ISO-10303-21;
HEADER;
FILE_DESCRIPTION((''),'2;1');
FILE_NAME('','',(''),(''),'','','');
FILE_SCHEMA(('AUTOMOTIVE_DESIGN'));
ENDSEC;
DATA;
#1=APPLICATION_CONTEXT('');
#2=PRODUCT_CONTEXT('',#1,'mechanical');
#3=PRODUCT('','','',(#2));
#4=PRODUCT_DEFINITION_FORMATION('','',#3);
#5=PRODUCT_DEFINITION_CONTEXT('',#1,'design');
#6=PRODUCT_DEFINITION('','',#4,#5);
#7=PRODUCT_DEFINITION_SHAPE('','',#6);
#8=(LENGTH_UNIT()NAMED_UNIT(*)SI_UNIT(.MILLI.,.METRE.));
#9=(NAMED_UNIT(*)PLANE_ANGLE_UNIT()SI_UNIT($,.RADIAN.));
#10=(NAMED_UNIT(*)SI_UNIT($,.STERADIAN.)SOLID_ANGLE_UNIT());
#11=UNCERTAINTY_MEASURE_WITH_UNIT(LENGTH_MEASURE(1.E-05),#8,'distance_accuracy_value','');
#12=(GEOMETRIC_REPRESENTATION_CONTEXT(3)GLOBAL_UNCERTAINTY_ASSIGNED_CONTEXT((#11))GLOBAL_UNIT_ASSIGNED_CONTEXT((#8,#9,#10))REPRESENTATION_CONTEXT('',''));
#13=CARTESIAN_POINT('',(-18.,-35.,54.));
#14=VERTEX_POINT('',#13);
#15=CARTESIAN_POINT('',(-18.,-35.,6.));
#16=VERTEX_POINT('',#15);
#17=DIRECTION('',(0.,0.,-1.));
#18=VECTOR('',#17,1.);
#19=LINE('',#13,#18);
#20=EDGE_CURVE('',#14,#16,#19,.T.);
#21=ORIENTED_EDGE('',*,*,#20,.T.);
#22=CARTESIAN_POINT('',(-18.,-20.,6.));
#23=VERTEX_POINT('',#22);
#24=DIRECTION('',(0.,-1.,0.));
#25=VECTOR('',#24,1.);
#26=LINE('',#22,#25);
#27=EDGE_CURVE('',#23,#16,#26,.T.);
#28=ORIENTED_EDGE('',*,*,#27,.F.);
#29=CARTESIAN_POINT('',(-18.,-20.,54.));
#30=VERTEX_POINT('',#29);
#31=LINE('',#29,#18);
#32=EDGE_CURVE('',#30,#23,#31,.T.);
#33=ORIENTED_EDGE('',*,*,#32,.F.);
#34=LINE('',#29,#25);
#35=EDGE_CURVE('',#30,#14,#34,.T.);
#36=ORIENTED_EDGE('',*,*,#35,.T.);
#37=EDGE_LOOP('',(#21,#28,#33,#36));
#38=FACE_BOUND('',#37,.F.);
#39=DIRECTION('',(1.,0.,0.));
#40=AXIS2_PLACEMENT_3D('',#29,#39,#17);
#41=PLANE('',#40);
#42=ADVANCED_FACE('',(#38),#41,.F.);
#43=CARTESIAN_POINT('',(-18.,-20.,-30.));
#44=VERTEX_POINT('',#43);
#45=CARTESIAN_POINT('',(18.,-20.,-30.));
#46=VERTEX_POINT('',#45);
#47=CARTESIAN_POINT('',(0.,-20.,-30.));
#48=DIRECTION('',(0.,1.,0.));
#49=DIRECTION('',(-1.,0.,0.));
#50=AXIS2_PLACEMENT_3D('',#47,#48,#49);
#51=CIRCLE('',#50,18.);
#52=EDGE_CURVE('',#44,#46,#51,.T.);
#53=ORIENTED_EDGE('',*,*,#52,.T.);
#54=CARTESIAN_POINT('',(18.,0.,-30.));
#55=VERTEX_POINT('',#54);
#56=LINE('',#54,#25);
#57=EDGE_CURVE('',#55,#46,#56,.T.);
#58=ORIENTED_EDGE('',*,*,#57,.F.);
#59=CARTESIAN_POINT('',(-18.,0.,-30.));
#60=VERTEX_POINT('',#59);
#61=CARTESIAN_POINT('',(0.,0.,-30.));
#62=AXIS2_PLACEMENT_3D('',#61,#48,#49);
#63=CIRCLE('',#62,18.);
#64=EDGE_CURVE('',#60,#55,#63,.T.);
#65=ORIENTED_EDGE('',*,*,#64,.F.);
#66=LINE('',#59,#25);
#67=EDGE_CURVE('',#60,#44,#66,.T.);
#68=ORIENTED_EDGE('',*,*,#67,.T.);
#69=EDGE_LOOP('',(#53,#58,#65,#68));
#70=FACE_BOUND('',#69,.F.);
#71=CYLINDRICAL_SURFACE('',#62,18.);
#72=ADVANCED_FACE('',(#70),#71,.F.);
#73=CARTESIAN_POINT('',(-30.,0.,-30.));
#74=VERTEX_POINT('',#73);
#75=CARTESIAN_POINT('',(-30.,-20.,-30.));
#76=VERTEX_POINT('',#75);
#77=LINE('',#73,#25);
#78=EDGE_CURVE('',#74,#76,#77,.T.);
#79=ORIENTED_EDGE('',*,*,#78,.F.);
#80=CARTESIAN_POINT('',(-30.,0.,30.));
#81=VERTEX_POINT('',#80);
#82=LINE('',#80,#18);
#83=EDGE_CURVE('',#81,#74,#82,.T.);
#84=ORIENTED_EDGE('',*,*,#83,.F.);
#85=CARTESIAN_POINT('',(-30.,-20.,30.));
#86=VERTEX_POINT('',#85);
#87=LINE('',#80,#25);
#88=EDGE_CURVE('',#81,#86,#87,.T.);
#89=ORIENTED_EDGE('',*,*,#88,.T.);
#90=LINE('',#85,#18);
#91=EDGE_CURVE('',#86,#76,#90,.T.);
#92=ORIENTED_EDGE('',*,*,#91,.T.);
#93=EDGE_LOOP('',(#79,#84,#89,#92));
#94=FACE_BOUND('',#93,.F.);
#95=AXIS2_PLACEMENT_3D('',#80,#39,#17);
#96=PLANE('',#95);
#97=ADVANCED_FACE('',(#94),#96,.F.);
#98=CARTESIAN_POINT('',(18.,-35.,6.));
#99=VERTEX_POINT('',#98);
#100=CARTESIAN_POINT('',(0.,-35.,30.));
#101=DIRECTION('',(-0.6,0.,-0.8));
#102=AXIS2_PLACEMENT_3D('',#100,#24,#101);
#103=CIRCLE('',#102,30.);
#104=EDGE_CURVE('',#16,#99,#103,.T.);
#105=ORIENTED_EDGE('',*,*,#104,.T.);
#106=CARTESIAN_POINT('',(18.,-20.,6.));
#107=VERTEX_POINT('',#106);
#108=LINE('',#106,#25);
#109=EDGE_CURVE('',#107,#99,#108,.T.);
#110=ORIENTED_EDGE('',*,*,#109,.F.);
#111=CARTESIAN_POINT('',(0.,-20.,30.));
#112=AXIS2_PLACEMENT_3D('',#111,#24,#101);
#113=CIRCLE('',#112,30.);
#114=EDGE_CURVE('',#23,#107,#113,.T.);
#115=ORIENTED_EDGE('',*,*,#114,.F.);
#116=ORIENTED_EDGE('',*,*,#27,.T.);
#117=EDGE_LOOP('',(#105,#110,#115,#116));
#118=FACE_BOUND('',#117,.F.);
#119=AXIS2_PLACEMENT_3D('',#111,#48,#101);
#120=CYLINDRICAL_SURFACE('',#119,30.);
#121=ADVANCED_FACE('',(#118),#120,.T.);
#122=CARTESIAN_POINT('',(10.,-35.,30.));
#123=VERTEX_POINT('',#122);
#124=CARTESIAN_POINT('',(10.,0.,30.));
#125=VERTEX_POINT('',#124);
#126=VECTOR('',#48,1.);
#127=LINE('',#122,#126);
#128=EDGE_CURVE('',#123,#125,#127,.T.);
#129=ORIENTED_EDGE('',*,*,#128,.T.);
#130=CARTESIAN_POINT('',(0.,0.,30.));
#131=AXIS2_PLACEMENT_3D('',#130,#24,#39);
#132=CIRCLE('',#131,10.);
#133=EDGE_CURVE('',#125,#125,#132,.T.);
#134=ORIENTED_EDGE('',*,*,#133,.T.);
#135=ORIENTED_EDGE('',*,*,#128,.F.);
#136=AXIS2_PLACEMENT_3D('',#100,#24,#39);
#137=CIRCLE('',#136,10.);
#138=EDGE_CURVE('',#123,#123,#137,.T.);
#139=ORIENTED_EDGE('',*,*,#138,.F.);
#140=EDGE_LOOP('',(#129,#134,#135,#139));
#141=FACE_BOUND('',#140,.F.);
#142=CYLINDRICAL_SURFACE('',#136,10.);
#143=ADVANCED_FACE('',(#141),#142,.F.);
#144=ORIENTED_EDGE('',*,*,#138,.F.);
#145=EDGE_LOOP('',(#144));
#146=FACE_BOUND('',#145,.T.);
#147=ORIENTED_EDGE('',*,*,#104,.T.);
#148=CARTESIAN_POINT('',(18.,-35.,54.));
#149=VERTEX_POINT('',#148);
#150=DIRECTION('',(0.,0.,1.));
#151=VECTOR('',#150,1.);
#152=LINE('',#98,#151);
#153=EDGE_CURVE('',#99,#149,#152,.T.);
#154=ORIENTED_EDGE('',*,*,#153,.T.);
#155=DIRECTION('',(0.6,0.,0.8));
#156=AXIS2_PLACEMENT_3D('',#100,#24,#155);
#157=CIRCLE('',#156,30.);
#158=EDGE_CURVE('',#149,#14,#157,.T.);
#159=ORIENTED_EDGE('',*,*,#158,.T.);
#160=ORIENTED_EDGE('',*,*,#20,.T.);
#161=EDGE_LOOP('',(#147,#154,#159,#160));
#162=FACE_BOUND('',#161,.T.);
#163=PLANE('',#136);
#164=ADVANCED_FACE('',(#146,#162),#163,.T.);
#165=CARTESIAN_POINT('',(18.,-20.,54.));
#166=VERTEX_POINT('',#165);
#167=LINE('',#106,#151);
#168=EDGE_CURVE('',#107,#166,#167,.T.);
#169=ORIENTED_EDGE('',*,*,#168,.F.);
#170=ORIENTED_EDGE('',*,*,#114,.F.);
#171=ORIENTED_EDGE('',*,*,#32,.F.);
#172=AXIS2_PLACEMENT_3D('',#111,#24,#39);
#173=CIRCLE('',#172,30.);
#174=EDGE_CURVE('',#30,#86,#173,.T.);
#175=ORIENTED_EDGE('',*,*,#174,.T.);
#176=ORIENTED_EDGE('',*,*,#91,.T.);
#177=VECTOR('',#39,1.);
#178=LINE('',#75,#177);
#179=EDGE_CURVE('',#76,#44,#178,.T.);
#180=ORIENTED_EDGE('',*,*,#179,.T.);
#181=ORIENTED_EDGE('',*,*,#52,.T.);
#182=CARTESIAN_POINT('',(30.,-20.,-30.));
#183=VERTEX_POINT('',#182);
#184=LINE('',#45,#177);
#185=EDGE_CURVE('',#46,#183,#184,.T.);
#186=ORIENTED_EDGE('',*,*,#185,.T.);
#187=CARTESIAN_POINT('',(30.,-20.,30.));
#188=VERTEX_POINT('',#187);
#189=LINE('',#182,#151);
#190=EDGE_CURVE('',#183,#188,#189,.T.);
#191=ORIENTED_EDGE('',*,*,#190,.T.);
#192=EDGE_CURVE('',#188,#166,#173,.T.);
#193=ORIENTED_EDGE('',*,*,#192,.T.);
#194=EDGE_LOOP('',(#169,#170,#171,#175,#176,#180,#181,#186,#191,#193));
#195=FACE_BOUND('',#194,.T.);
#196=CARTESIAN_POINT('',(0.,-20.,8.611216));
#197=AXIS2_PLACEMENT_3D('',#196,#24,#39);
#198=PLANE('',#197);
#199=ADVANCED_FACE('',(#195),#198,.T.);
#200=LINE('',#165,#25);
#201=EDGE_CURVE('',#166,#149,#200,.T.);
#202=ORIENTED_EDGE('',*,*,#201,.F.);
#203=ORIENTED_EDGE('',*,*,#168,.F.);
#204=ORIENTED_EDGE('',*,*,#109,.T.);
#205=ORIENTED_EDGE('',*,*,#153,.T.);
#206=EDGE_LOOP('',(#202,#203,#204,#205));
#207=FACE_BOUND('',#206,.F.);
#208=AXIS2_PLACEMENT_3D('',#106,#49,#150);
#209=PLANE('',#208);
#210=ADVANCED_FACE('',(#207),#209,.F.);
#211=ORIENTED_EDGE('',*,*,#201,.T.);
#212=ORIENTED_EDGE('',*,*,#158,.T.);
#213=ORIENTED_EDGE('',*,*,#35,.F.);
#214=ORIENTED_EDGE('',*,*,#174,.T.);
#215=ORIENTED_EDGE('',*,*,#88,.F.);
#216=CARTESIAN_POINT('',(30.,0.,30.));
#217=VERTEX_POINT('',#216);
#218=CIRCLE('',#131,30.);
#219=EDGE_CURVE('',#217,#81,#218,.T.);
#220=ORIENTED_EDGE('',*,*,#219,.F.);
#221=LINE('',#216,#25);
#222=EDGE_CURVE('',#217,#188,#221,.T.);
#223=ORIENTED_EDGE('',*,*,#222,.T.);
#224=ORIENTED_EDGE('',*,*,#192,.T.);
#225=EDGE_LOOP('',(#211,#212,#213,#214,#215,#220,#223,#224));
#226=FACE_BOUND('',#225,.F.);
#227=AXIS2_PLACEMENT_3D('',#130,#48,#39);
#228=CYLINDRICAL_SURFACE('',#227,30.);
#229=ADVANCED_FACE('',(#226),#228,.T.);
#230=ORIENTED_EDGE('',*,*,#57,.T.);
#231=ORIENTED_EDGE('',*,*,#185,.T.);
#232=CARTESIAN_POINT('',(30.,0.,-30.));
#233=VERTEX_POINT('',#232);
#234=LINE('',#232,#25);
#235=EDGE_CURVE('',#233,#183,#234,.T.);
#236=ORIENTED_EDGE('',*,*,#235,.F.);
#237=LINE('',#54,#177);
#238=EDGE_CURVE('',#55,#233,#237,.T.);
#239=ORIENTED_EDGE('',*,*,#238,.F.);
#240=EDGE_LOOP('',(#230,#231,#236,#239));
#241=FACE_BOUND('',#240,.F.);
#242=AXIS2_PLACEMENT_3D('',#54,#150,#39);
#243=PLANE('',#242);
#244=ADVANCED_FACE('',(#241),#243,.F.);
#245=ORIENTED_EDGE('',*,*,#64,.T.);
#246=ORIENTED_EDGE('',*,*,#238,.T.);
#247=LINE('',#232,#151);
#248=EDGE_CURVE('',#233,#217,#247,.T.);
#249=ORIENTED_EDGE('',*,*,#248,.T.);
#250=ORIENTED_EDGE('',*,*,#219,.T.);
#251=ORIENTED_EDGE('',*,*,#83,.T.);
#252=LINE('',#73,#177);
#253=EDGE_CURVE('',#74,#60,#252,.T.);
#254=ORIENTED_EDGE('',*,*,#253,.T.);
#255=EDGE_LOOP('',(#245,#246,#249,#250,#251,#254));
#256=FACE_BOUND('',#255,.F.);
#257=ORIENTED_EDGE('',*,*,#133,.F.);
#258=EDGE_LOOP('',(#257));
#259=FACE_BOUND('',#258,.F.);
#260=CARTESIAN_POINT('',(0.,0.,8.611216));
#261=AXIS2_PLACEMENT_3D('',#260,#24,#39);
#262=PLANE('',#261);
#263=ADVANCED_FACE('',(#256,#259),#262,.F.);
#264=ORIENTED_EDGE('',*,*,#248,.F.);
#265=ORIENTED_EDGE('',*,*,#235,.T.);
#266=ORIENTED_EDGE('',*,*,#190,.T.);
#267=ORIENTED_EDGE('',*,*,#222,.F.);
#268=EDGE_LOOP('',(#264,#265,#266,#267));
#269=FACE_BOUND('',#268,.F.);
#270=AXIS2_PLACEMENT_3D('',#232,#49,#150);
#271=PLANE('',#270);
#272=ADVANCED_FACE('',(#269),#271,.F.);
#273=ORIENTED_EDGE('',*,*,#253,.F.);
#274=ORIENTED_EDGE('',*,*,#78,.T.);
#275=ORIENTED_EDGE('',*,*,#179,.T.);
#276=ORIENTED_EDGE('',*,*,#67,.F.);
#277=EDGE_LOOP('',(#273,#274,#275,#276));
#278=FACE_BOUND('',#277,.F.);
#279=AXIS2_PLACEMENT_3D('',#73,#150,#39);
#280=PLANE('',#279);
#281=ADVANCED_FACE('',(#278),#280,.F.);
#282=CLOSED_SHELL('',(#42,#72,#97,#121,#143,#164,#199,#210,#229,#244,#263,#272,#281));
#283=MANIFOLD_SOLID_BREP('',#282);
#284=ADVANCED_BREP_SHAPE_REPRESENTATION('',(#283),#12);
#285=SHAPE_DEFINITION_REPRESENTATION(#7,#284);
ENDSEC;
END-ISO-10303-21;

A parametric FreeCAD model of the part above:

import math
import FreeCAD as App
import Part
import Sketcher

doc = App.newDocument("Part")
body = doc.addObject("PartDesign::Body", "Body")

sketch1 = body.newObject("Sketcher::SketchObject", "Sketch")
sketch1.AttachmentSupport = (doc.getObject("XZ_Plane"), [""])
sketch1.MapMode = "FlatFace"
sketch1.addGeometry(Part.LineSegment(App.Vector(18, -30, 0), App.Vector(30, -30, 0)), False)
sketch1.addGeometry(Part.LineSegment(App.Vector(30, -30, 0), App.Vector(30, 30, 0)), False)
sketch1.addGeometry(Part.ArcOfCircle(Part.Circle(App.Vector(0, 30, 0), App.Vector(0, 0, 1), 30), math.radians(0), math.radians(180)), False)
sketch1.addGeometry(Part.LineSegment(App.Vector(-30, 30, 0), App.Vector(-30, -30, 0)), False)
sketch1.addGeometry(Part.LineSegment(App.Vector(-30, -30, 0), App.Vector(-18, -30, 0)), False)
sketch1.addGeometry(Part.ArcOfCircle(Part.Circle(App.Vector(0, -30, 0), App.Vector(0, 0, 1), 18), math.radians(0), math.radians(180)), False)
sketch1.addConstraint(Sketcher.Constraint("Coincident", 0, 2, 1, 1))
sketch1.addConstraint(Sketcher.Constraint("Tangent", 1, 2, 2, 1))
sketch1.addConstraint(Sketcher.Constraint("Tangent", 2, 2, 3, 1))
sketch1.addConstraint(Sketcher.Constraint("Coincident", 3, 2, 4, 1))
sketch1.addConstraint(Sketcher.Constraint("Coincident", 4, 2, 5, 2))
sketch1.addConstraint(Sketcher.Constraint("Coincident", 5, 1, 0, 1))
sketch1.addConstraint(Sketcher.Constraint("Horizontal", 0))
sketch1.addConstraint(Sketcher.Constraint("Vertical", 1))
sketch1.addConstraint(Sketcher.Constraint("Vertical", 3))
sketch1.addConstraint(Sketcher.Constraint("Horizontal", 4))
sketch1.addConstraint(Sketcher.Constraint("Symmetric", 2, 3, 5, 3, -1, 1))
sketch1.addConstraint(Sketcher.Constraint("Symmetric", 0, 2, 2, 2, -1, 1))
sketch1.addConstraint(Sketcher.Constraint("Horizontal", 0, 2, 3, 2))
sketch1.addConstraint(Sketcher.Constraint("Radius", 2, 30.0))
sketch1.addConstraint(Sketcher.Constraint("Radius", 5, 18.0))
sketch1.addConstraint(Sketcher.Constraint("DistanceY", 1, 1, 1, 2, 60.0))
pad1 = body.newObject("PartDesign::Pad", "Pad")
pad1.Profile = sketch1
pad1.Length = 20

sketch2 = body.newObject("Sketcher::SketchObject", "Sketch001")
sketch2.AttachmentSupport = (doc.getObject("XZ_Plane"), [""])
sketch2.MapMode = "FlatFace"
sketch2.AttachmentOffset = App.Placement(App.Vector(0, 0, 20), App.Rotation())
sketch2.addGeometry(Part.ArcOfCircle(Part.Circle(App.Vector(0, 30, 0), App.Vector(0, 0, 1), 30), math.radians(-127), math.radians(-53)), False)
sketch2.addGeometry(Part.LineSegment(App.Vector(18, 6, 0), App.Vector(18, 54, 0)), False)
sketch2.addGeometry(Part.ArcOfCircle(Part.Circle(App.Vector(0, 30, 0), App.Vector(0, 0, 1), 30), math.radians(53), math.radians(127)), False)
sketch2.addGeometry(Part.LineSegment(App.Vector(-18, 54, 0), App.Vector(-18, 6, 0)), False)
sketch2.addConstraint(Sketcher.Constraint("Coincident", 0, 2, 1, 1))
sketch2.addConstraint(Sketcher.Constraint("Coincident", 1, 2, 2, 1))
sketch2.addConstraint(Sketcher.Constraint("Coincident", 2, 2, 3, 1))
sketch2.addConstraint(Sketcher.Constraint("Coincident", 3, 2, 0, 1))
sketch2.addConstraint(Sketcher.Constraint("Vertical", 1))
sketch2.addConstraint(Sketcher.Constraint("Vertical", 3))
sketch2.addConstraint(Sketcher.Constraint("Coincident", 2, 3, 0, 3))
sketch2.addConstraint(Sketcher.Constraint("Equal", 0, 2))
sketch2.addConstraint(Sketcher.Constraint("Symmetric", 1, 2, 2, 2, -2))
sketch2.addConstraint(Sketcher.Constraint("Radius", 0, 30.0))
sketch2.addConstraint(Sketcher.Constraint("DistanceY", 1, 1, 1, 2, 48.0))
sketch2.addConstraint(Sketcher.Constraint("DistanceY", -1, 1, 0, 3, 30.0))
pad2 = body.newObject("PartDesign::Pad", "Pad001")
pad2.Profile = sketch2
pad2.Length = 15

sketch3 = body.newObject("Sketcher::SketchObject", "Sketch002")
sketch3.AttachmentSupport = (doc.getObject("XZ_Plane"), [""])
sketch3.MapMode = "FlatFace"
sketch3.AttachmentOffset = App.Placement(App.Vector(0, 0, 35), App.Rotation())
sketch3.addGeometry(Part.Circle(App.Vector(0, 30, 0), App.Vector(0, 0, 1), 10), False)
sketch3.addConstraint(Sketcher.Constraint("PointOnObject", 0, 3, -2))
sketch3.addConstraint(Sketcher.Constraint("Diameter", 0, 20.0))
sketch3.addConstraint(Sketcher.Constraint("DistanceY", -1, 1, 0, 3, 30.0))
pocket1 = body.newObject("PartDesign::Pocket", "Pocket")
pocket1.Profile = sketch3
pocket1.Type = "ThroughAll"

doc.recompute()
